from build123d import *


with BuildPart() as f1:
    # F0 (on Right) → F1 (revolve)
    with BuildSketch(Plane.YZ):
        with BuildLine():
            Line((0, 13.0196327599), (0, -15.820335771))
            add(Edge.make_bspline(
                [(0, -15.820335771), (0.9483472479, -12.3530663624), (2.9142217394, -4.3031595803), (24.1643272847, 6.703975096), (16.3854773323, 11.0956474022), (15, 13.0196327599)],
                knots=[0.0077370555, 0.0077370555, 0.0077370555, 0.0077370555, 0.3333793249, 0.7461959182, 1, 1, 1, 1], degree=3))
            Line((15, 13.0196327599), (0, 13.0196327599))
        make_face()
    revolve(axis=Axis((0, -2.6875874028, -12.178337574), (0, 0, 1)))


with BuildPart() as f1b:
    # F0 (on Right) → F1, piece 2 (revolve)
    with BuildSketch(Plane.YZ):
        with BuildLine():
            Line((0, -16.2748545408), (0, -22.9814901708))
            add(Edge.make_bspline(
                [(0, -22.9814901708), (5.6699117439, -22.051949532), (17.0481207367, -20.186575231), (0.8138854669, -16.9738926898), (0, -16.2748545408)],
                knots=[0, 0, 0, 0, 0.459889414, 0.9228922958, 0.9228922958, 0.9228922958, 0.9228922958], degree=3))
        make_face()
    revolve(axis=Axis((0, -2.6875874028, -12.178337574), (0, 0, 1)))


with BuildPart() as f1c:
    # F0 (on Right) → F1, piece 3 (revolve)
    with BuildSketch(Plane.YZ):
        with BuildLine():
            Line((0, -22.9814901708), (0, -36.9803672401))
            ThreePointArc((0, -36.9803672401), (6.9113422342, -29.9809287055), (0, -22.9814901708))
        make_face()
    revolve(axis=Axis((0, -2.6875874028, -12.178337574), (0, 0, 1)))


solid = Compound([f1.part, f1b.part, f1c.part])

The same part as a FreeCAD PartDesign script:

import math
import FreeCAD as App
import Part
import Sketcher
from FreeCAD import Vector

doc = App.newDocument("Part")
body = doc.addObject("PartDesign::Body", "Body")

# Sketch on YZ plane
sketch1 = body.newObject("Sketcher::SketchObject", "Sketch")
sketch1.AttachmentSupport = (doc.getObject("YZ_Plane"), [""])
sketch1.MapMode = "FlatFace"
sketch1.addGeometry(Part.LineSegment(Vector(0, 13.019633, 0), Vector(0, -15.820336, 0)), False)
sketch1.addGeometry(Part.BSplineCurve([Vector(0, -15.820336, 0), Vector(0.948347, -12.353066, 0), Vector(2.914222, -4.30316, 0), Vector(24.164327, 6.703975, 0), Vector(16.385477, 11.095647, 0), Vector(15, 13.019633, 0)], [4, 1, 1, 4], [0.007737056, 0.333379325, 0.746195918, 1], False, 3, [1, 1, 1, 1, 1, 1], False), False)
sketch1.addGeometry(Part.LineSegment(Vector(15, 13.019633, 0), Vector(0, 13.019633, 0)), False)
sketch1.addGeometry(Part.LineSegment(Vector(-2.687587, -15.820336, 0), Vector(-2.687587, 13.019633, 0)), True)  # axis
sketch1.addConstraint(Sketcher.Constraint("Block", 1))
sketch1.addConstraint(Sketcher.Constraint("Coincident", 0, 2, 1, 1))
sketch1.addConstraint(Sketcher.Constraint("Coincident", 1, 2, 2, 1))
sketch1.addConstraint(Sketcher.Constraint("Coincident", 2, 2, 0, 1))
sketch1.addConstraint(Sketcher.Constraint("Vertical", 0))
sketch1.addConstraint(Sketcher.Constraint("Horizontal", 2))
sketch1.addConstraint(Sketcher.Constraint("Vertical", 3))
sketch1.addConstraint(Sketcher.Constraint("Horizontal", 0, 2, 3, 1))
sketch1.addConstraint(Sketcher.Constraint("Horizontal", 2, 2, 3, 2))
sketch1.addConstraint(Sketcher.Constraint("DistanceX", 3, 1, -1, 1, 2.687587))
revolution = body.newObject("PartDesign::Revolution", "Revolution")
revolution.Profile = sketch1
revolution.ReferenceAxis = (sketch1, ["Axis0"])
revolution.Angle = 360
body2 = doc.addObject("PartDesign::Body", "Body001")

# Sketch on YZ plane
sketch2 = body2.newObject("Sketcher::SketchObject", "Sketch001")
sketch2.AttachmentSupport = (doc.getObject("YZ_Plane001"), [""])
sketch2.MapMode = "FlatFace"
sketch2.addGeometry(Part.LineSegment(Vector(0, -16.274855, 0), Vector(0, -22.98149, 0)), False)
sketch2.addGeometry(Part.BSplineCurve([Vector(0, -22.98149, 0), Vector(5.669912, -22.05195, 0), Vector(17.048121, -20.186575, 0), Vector(0.813885, -16.973893, 0), Vector(0, -16.274855, 0)], [4, 1, 4], [0, 0.459889414, 0.922892296], False, 3, [1, 1, 1, 1, 1], False), False)
sketch2.addGeometry(Part.LineSegment(Vector(-2.687587, -22.98149, 0), Vector(-2.687587, -16.274855, 0)), True)  # axis
sketch2.addConstraint(Sketcher.Constraint("Block", 1))
sketch2.addConstraint(Sketcher.Constraint("Coincident", 0, 1, 1, 2))
sketch2.addConstraint(Sketcher.Constraint("Coincident", 1, 1, 0, 2))
sketch2.addConstraint(Sketcher.Constraint("Vertical", 2))
sketch2.addConstraint(Sketcher.Constraint("DistanceY", 2, 1, 2, 2, 6.706636))
sketch2.addConstraint(Sketcher.Constraint("DistanceY", 2, 1, -1, 1, 22.98149))
sketch2.addConstraint(Sketcher.Constraint("DistanceX", 2, 1, -1, 1, 2.687587))
revolution2 = body2.newObject("PartDesign::Revolution", "Revolution001")
revolution2.Profile = sketch2
revolution2.ReferenceAxis = (sketch2, ["Axis0"])
revolution2.Angle = 360
body3 = doc.addObject("PartDesign::Body", "Body002")

# Sketch on YZ plane
sketch3 = body3.newObject("Sketcher::SketchObject", "Sketch002")
sketch3.AttachmentSupport = (doc.getObject("YZ_Plane002"), [""])
sketch3.MapMode = "FlatFace"
sketch3.addGeometry(Part.LineSegment(Vector(0, -22.98149, 0), Vector(0, -36.980367, 0)), False)
sketch3.addGeometry(Part.ArcOfCircle(Part.Circle(Vector(-0.088658, -29.980929, 0), Vector(0, 0, 1), 7), math.radians(-89.274307), math.radians(89.274307)), False)
sketch3.addGeometry(Part.LineSegment(Vector(-2.687587, -36.980367, 0), Vector(-2.687587, -22.98149, 0)), True)  # axis
sketch3.addConstraint(Sketcher.Constraint("Coincident", 0, 1, 1, 2))
sketch3.addConstraint(Sketcher.Constraint("Coincident", 1, 1, 0, 2))
sketch3.addConstraint(Sketcher.Constraint("Vertical", 0))
sketch3.addConstraint(Sketcher.Constraint("Vertical", 2))
sketch3.addConstraint(Sketcher.Constraint("PointOnObject", 0, 1, -2))
sketch3.addConstraint(Sketcher.Constraint("Horizontal", 1, 1, 2, 1))
sketch3.addConstraint(Sketcher.Constraint("Horizontal", 0, 1, 2, 2))
sketch3.addConstraint(Sketcher.Constraint("Radius", 1, 7.0))
sketch3.addConstraint(Sketcher.Constraint("DistanceY", 0, 2, 0, 1, 13.998877))
sketch3.addConstraint(Sketcher.Constraint("DistanceY", 1, 3, -1, 1, 29.980929))
sketch3.addConstraint(Sketcher.Constraint("DistanceX", 2, 1, 1, 3, 2.59893))
revolution3 = body3.newObject("PartDesign::Revolution", "Revolution002")
revolution3.Profile = sketch3
revolution3.ReferenceAxis = (sketch3, ["Axis0"])
revolution3.Angle = 360

doc.recompute()
